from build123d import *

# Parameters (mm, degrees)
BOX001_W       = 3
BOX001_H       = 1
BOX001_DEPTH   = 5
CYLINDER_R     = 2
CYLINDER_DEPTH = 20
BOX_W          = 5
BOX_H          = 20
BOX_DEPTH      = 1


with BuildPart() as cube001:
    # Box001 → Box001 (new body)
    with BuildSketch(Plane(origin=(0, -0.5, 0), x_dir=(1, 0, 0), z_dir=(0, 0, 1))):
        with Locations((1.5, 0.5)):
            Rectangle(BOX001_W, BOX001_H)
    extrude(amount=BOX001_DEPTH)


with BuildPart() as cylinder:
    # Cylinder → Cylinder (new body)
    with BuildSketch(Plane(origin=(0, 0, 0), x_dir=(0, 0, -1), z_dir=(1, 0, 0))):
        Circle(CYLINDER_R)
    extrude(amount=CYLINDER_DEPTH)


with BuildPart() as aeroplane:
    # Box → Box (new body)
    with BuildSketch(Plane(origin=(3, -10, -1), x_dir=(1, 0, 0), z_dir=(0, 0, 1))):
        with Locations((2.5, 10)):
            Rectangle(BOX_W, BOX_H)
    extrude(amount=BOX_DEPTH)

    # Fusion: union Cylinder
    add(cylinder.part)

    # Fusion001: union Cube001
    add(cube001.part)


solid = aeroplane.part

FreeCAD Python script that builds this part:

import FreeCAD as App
import Part
import Sketcher
from FreeCAD import Vector
Q = App.Units.Quantity


def add_polygon(sketch, points):
    """Adds a closed chain of lines whose ends are joined by coincident constraints."""
    first, n = sketch.GeometryCount, len(points)
    for a, b in zip(points, points[1:] + points[:1]):
        sketch.addGeometry(Part.LineSegment(App.Vector(*a, 0), App.Vector(*b, 0)), False)
    for i in range(n):
        sketch.addConstraint(Sketcher.Constraint("Coincident", first + i, 2, first + (i + 1) % n, 1))

doc = App.newDocument("Part")
body = doc.addObject("PartDesign::Body", "Body")

# Sketch on XY plane
sketch1 = body.newObject("Sketcher::SketchObject", "Sketch")
sketch1.AttachmentSupport = (doc.getObject("XY_Plane"), [""])
sketch1.MapMode = "FlatFace"
add_polygon(sketch1, [(0, 0.5), (0, -0.5), (3, -0.5), (3, 0.5)])  # lines 0-3
sketch1.addConstraint(Sketcher.Constraint("Vertical", 0))
sketch1.addConstraint(Sketcher.Constraint("Horizontal", 1))
sketch1.addConstraint(Sketcher.Constraint("Vertical", 2))
sketch1.addConstraint(Sketcher.Constraint("Horizontal", 3))
sketch1.addConstraint(Sketcher.Constraint("Symmetric", 0, 2, 3, 2, -1, 1))
sketch1.addConstraint(Sketcher.Constraint("DistanceX", 1, 1, 1, 2, Q("3 mm")))
sketch1.addConstraint(Sketcher.Constraint("DistanceY", 0, 2, 0, 1, Q("1 mm")))
pad1 = body.newObject("PartDesign::Pad", "Pad")
pad1.Profile = sketch1
pad1.Length = 5
body2 = doc.addObject("PartDesign::Body", "Body001")

# Sketch on YZ plane
sketch2 = body2.newObject("Sketcher::SketchObject", "Sketch001")
sketch2.AttachmentSupport = (doc.getObject("YZ_Plane001"), [""])
sketch2.MapMode = "FlatFace"
sketch2.addGeometry(Part.Circle(Vector(0, 0, 0), Vector(0, 0, 1), 2), False)
sketch2.addConstraint(Sketcher.Constraint("Coincident", 0, 3, -1, 1))
sketch2.addConstraint(Sketcher.Constraint("Diameter", 0, Q("4 mm")))
pad2 = body2.newObject("PartDesign::Pad", "Pad001")
pad2.Profile = sketch2
pad2.Length = 20
body3 = doc.addObject("PartDesign::Body", "Body002")

# Sketch on XY plane
sketch3 = body3.newObject("Sketcher::SketchObject", "Sketch002")
sketch3.AttachmentSupport = (doc.getObject("XY_Plane002"), [""])
sketch3.MapMode = "FlatFace"
sketch3.AttachmentOffset = App.Placement(Vector(0, 0, -1), App.Rotation())
add_polygon(sketch3, [(3, 10), (3, -10), (8, -10), (8, 10)])  # lines 0-3
sketch3.addConstraint(Sketcher.Constraint("Vertical", 0))
sketch3.addConstraint(Sketcher.Constraint("Horizontal", 1))
sketch3.addConstraint(Sketcher.Constraint("Vertical", 2))
sketch3.addConstraint(Sketcher.Constraint("Horizontal", 3))
sketch3.addConstraint(Sketcher.Constraint("DistanceX", 1, 1, 1, 2, Q("5 mm")))
sketch3.addConstraint(Sketcher.Constraint("DistanceY", 0, 2, 0, 1, Q("20 mm")))
sketch3.addConstraint(Sketcher.Constraint("DistanceX", -1, 1, 0, 2, Q("3 mm")))
sketch3.addConstraint(Sketcher.Constraint("DistanceY", 0, 2, -1, 1, Q("10 mm")))
pad3 = body3.newObject("PartDesign::Pad", "Pad002")
pad3.Profile = sketch3
pad3.Length = 1
doc.recompute()

boolean = body3.newObject("PartDesign::Boolean", "Boolean")
boolean.Type = "Fuse"
boolean.addObjects([body2])
doc.recompute()

boolean2 = body3.newObject("PartDesign::Boolean", "Boolean001")
boolean2.Type = "Fuse"
boolean2.addObjects([body])

doc.recompute()
